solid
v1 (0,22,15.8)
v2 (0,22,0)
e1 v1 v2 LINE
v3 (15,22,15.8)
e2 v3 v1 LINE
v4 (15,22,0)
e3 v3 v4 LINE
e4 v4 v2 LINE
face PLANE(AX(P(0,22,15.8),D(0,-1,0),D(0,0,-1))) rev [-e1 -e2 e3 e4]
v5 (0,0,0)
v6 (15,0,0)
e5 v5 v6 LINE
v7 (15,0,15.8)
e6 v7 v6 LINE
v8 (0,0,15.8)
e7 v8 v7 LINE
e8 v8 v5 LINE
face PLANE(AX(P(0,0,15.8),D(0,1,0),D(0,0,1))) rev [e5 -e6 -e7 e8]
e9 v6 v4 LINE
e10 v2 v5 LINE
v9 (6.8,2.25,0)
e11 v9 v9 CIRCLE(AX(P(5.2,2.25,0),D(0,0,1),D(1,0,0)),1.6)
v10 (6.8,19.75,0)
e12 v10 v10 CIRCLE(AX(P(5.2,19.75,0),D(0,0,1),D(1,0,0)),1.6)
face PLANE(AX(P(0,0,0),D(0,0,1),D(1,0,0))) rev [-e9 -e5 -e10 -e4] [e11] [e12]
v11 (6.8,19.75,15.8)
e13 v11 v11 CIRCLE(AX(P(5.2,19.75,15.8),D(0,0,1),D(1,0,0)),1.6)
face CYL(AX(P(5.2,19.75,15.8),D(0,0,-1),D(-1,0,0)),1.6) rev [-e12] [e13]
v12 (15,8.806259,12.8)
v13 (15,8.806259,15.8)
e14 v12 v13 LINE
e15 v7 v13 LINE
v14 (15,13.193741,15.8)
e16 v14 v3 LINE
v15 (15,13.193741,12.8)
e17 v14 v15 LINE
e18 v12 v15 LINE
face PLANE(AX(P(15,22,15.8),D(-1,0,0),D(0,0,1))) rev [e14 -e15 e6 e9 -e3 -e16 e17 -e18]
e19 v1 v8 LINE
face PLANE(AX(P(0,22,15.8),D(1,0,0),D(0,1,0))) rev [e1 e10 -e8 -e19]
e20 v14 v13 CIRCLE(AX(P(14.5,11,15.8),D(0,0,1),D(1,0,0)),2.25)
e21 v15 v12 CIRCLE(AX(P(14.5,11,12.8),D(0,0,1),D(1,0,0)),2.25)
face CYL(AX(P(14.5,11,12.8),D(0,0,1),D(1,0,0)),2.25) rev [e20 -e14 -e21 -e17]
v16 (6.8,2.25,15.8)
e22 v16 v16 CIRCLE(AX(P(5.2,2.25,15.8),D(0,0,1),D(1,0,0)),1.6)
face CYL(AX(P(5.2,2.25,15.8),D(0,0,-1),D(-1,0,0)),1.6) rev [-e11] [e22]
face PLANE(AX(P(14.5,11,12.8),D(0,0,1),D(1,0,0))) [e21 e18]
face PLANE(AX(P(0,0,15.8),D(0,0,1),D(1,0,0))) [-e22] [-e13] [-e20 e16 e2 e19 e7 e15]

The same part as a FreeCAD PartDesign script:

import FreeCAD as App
import Part
import Sketcher

V = App.Vector

doc = App.newDocument("Part")
body = doc.addObject("PartDesign::Body", "Body")

# Sketch on XY plane
sketch1 = body.newObject("Sketcher::SketchObject", "Sketch")
sketch1.AttachmentSupport = (doc.getObject("XY_Plane"), [""])
sketch1.MapMode = "FlatFace"
sketch1.addGeometry([
    Part.LineSegment(V(0, 22, 0), V(0, 0, 0)),  # 0
    Part.LineSegment(V(0, 0, 0), V(15, 0, 0)),  # 1
    Part.LineSegment(V(15, 0, 0), V(15, 22, 0)),  # 2
    Part.LineSegment(V(15, 22, 0), V(0, 22, 0)),  # 3
    Part.Circle(V(5.2, 2.2, 0), V(0, 0, 1), 1.6),  # 4
    Part.Circle(V(5.2, 19.8, 0), V(0, 0, 1), 1.6),  # 5
], False)
sketch1.addConstraint([
    Sketcher.Constraint("Coincident", 0, 2, 1, 1),
    Sketcher.Constraint("Coincident", 1, 2, 2, 1),
    Sketcher.Constraint("Coincident", 2, 2, 3, 1),
    Sketcher.Constraint("Coincident", 3, 2, 0, 1),
    Sketcher.Constraint("Vertical", 0),
    Sketcher.Constraint("Horizontal", 1),
    Sketcher.Constraint("Vertical", 2),
    Sketcher.Constraint("Horizontal", 3),
    Sketcher.Constraint("Coincident", 0, 2, -1, 1),
    Sketcher.Constraint("Equal", 4, 5),
    Sketcher.Constraint("Vertical", 4, 3, 5, 3),
    Sketcher.Constraint("Diameter", 4, 3.2),
    Sketcher.Constraint("DistanceX", 1, 1, 1, 2, 15.0),
    Sketcher.Constraint("DistanceY", 0, 2, 0, 1, 22.0),
    Sketcher.Constraint("DistanceX", -1, 1, 4, 3, 5.2),
    Sketcher.Constraint("DistanceY", 4, 3, 5, 3, 17.5),
    Sketcher.Constraint("DistanceY", -1, 1, 4, 3, 2.25),
])
pad1 = body.newObject("PartDesign::Pad", "Pad")
pad1.Profile = sketch1
pad1.Length = 15.8

# Sketch on XY plane
sketch2 = body.newObject("Sketcher::SketchObject", "Sketch001")
sketch2.AttachmentSupport = (doc.getObject("XY_Plane"), [""])
sketch2.MapMode = "FlatFace"
sketch2.AttachmentOffset = App.Placement(V(0, 0, 15.8), App.Rotation())
sketch2.addGeometry(Part.Circle(V(14.5, 11, 0), V(0, 0, 1), 2.2), False)
sketch2.addConstraint([
    Sketcher.Constraint("Diameter", 0, 4.5),
    Sketcher.Constraint("DistanceY", -1, 1, 0, 3, 11.0),
    Sketcher.Constraint("DistanceX", -1, 1, 0, 3, 14.5),
])
pocket1 = body.newObject("PartDesign::Pocket", "Pocket")
pocket1.Profile = sketch2
pocket1.Length = 3

doc.recompute()
